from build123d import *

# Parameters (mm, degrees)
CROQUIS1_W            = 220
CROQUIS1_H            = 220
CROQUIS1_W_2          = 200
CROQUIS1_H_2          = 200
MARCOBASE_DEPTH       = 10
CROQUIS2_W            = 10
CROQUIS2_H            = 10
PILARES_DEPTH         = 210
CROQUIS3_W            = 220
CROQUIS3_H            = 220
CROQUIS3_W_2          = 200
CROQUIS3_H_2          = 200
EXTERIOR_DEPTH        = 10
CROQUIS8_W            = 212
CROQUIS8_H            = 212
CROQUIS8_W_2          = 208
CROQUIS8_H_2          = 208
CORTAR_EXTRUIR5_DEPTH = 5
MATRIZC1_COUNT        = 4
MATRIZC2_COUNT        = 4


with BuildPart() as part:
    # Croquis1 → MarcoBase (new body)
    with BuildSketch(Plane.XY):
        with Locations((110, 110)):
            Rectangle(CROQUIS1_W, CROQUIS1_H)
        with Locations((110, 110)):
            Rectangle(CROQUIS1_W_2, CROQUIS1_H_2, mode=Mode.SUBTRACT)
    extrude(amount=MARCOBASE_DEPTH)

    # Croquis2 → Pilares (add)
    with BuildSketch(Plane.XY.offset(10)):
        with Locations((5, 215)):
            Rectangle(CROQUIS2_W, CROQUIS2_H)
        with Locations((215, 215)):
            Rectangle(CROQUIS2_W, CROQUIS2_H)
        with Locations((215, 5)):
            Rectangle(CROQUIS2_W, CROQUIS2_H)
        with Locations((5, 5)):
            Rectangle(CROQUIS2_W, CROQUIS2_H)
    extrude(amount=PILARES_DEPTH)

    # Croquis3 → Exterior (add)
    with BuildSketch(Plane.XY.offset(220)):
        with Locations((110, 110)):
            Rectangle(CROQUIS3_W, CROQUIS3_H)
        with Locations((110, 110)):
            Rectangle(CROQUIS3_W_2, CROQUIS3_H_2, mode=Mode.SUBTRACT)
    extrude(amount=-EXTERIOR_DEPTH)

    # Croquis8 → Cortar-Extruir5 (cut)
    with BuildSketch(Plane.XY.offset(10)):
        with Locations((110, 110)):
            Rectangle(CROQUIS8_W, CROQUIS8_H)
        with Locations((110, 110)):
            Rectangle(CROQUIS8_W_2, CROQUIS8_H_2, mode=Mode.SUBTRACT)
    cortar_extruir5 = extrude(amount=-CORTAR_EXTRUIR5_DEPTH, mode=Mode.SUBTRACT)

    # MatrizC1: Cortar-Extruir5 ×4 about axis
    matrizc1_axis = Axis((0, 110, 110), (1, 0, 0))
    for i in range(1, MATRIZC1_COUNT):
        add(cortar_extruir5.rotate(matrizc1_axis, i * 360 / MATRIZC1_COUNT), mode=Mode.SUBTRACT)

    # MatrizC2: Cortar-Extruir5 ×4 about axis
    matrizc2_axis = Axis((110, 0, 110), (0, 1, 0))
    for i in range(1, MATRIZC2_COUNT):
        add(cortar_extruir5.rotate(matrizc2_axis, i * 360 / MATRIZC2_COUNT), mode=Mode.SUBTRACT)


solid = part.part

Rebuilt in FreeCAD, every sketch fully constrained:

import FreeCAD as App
import Part
import Sketcher
Q = App.Units.Quantity

doc = App.newDocument("Part")
body = doc.addObject("PartDesign::Body", "Body")
body.AllowCompound = True

sketch1 = body.newObject("Sketcher::SketchObject", "Sketch")
sketch1.AttachmentSupport = (doc.getObject("XY_Plane"), [""])
sketch1.MapMode = "FlatFace"
sketch1.addGeometry([
    Part.LineSegment(App.Vector(0, 220, 0), App.Vector(0, 0, 0)),
    Part.LineSegment(App.Vector(0, 0, 0), App.Vector(220, 0, 0)),
    Part.LineSegment(App.Vector(220, 0, 0), App.Vector(220, 220, 0)),
    Part.LineSegment(App.Vector(220, 220, 0), App.Vector(0, 220, 0)),
    Part.LineSegment(App.Vector(210, 10, 0), App.Vector(10, 10, 0)),
    Part.LineSegment(App.Vector(10, 10, 0), App.Vector(10, 210, 0)),
    Part.LineSegment(App.Vector(10, 210, 0), App.Vector(210, 210, 0)),
    Part.LineSegment(App.Vector(210, 210, 0), App.Vector(210, 10, 0)),
], False)
sketch1.addConstraint([
    Sketcher.Constraint("Coincident", 0, 2, 1, 1),
    Sketcher.Constraint("Coincident", 1, 2, 2, 1),
    Sketcher.Constraint("Coincident", 2, 2, 3, 1),
    Sketcher.Constraint("Coincident", 3, 2, 0, 1),
    Sketcher.Constraint("Coincident", 4, 2, 5, 1),
    Sketcher.Constraint("Coincident", 5, 2, 6, 1),
    Sketcher.Constraint("Coincident", 6, 2, 7, 1),
    Sketcher.Constraint("Coincident", 7, 2, 4, 1),
    Sketcher.Constraint("Vertical", 0),
    Sketcher.Constraint("Horizontal", 1),
    Sketcher.Constraint("Vertical", 2),
    Sketcher.Constraint("Horizontal", 3),
    Sketcher.Constraint("Horizontal", 4),
    Sketcher.Constraint("Vertical", 5),
    Sketcher.Constraint("Horizontal", 6),
    Sketcher.Constraint("Vertical", 7),
    Sketcher.Constraint("Coincident", 0, 2, -1, 1),
    Sketcher.Constraint("Equal", 3, 0),
    Sketcher.Constraint("Equal", 6, 5),
    Sketcher.Constraint("DistanceX", 1, 1, 1, 2, Q("220 mm")),
    Sketcher.Constraint("DistanceX", 4, 2, 4, 1, Q("200 mm")),
    Sketcher.Constraint("DistanceX", -1, 1, 4, 2, Q("10 mm")),
    Sketcher.Constraint("DistanceY", -1, 1, 4, 2, Q("10 mm")),
])
pad1 = body.newObject("PartDesign::Pad", "Pad")
pad1.Profile = sketch1
pad1.Length = 10

sketch2 = body.newObject("Sketcher::SketchObject", "Sketch001")
sketch2.AttachmentSupport = (doc.getObject("XY_Plane"), [""])
sketch2.MapMode = "FlatFace"
sketch2.AttachmentOffset = App.Placement(App.Vector(0, 0, 10), App.Rotation())
sketch2.addGeometry([
    Part.LineSegment(App.Vector(0, 220, 0), App.Vector(0, 210, 0)),
    Part.LineSegment(App.Vector(0, 210, 0), App.Vector(10, 210, 0)),
    Part.LineSegment(App.Vector(10, 210, 0), App.Vector(10, 220, 0)),
    Part.LineSegment(App.Vector(10, 220, 0), App.Vector(0, 220, 0)),
    Part.LineSegment(App.Vector(210, 220, 0), App.Vector(210, 210, 0)),
    Part.LineSegment(App.Vector(210, 210, 0), App.Vector(220, 210, 0)),
    Part.LineSegment(App.Vector(220, 210, 0), App.Vector(220, 220, 0)),
    Part.LineSegment(App.Vector(220, 220, 0), App.Vector(210, 220, 0)),
    Part.LineSegment(App.Vector(210, 10, 0), App.Vector(210, 0, 0)),
    Part.LineSegment(App.Vector(210, 0, 0), App.Vector(220, 0, 0)),
    Part.LineSegment(App.Vector(220, 0, 0), App.Vector(220, 10, 0)),
    Part.LineSegment(App.Vector(220, 10, 0), App.Vector(210, 10, 0)),
    Part.LineSegment(App.Vector(0, 10, 0), App.Vector(0, 0, 0)),
    Part.LineSegment(App.Vector(0, 0, 0), App.Vector(10, 0, 0)),
    Part.LineSegment(App.Vector(10, 0, 0), App.Vector(10, 10, 0)),
    Part.LineSegment(App.Vector(10, 10, 0), App.Vector(0, 10, 0)),
], False)
sketch2.addConstraint([
    Sketcher.Constraint("Coincident", 0, 2, 1, 1),
    Sketcher.Constraint("Coincident", 1, 2, 2, 1),
    Sketcher.Constraint("Coincident", 2, 2, 3, 1),
    Sketcher.Constraint("Coincident", 3, 2, 0, 1),
    Sketcher.Constraint("Coincident", 4, 2, 5, 1),
    Sketcher.Constraint("Coincident", 5, 2, 6, 1),
    Sketcher.Constraint("Coincident", 6, 2, 7, 1),
    Sketcher.Constraint("Coincident", 7, 2, 4, 1),
    Sketcher.Constraint("Coincident", 8, 2, 9, 1),
    Sketcher.Constraint("Coincident", 9, 2, 10, 1),
    Sketcher.Constraint("Coincident", 10, 2, 11, 1),
    Sketcher.Constraint("Coincident", 11, 2, 8, 1),
    Sketcher.Constraint("Coincident", 12, 2, 13, 1),
    Sketcher.Constraint("Coincident", 13, 2, 14, 1),
    Sketcher.Constraint("Coincident", 14, 2, 15, 1),
    Sketcher.Constraint("Coincident", 15, 2, 12, 1),
    Sketcher.Constraint("Vertical", 0),
    Sketcher.Constraint("Horizontal", 1),
    Sketcher.Constraint("Vertical", 2),
    Sketcher.Constraint("Horizontal", 3),
    Sketcher.Constraint("Vertical", 4),
    Sketcher.Constraint("Horizontal", 5),
    Sketcher.Constraint("Vertical", 6),
    Sketcher.Constraint("Horizontal", 7),
    Sketcher.Constraint("Vertical", 8),
    Sketcher.Constraint("Horizontal", 9),
    Sketcher.Constraint("Vertical", 10),
    Sketcher.Constraint("Horizontal", 11),
    Sketcher.Constraint("Vertical", 12),
    Sketcher.Constraint("Horizontal", 13),
    Sketcher.Constraint("Vertical", 14),
    Sketcher.Constraint("Horizontal", 15),
    Sketcher.Constraint("Coincident", 12, 2, -1, 1),
    Sketcher.Constraint("PointOnObject", 0, 2, -2),
    Sketcher.Constraint("PointOnObject", 8, 2, -1),
    Sketcher.Constraint("Horizontal", 1, 2, 4, 2),
    Sketcher.Constraint("Horizontal", 3, 2, 6, 2),
    Sketcher.Constraint("Horizontal", 11, 2, 14, 2),
    Sketcher.Constraint("Vertical", 7, 2, 8, 2),
    Sketcher.Constraint("Vertical", 6, 2, 9, 2),
    Sketcher.Constraint("Vertical", 2, 2, 13, 2),
    Sketcher.Constraint("Equal", 3, 5),
    Sketcher.Constraint("Equal", 15, 0),
    Sketcher.Constraint("Equal", 6, 8),
    Sketcher.Constraint("DistanceX", 1, 1, 1, 2, Q("10 mm")),
    Sketcher.Constraint("DistanceY", -1, 1, 0, 2, Q("210 mm")),
    Sketcher.Constraint("DistanceX", -1, 1, 4, 2, Q("210 mm")),
])
pad2 = body.newObject("PartDesign::Pad", "Pad001")
pad2.Profile = sketch2
pad2.Length = 210

sketch3 = body.newObject("Sketcher::SketchObject", "Sketch002")
sketch3.AttachmentSupport = (doc.getObject("XY_Plane"), [""])
sketch3.MapMode = "FlatFace"
sketch3.AttachmentOffset = App.Placement(App.Vector(0, 0, 220), App.Rotation())
sketch3.addGeometry([
    Part.LineSegment(App.Vector(0, 220, 0), App.Vector(0, 0, 0)),
    Part.LineSegment(App.Vector(0, 0, 0), App.Vector(220, 0, 0)),
    Part.LineSegment(App.Vector(220, 0, 0), App.Vector(220, 220, 0)),
    Part.LineSegment(App.Vector(220, 220, 0), App.Vector(0, 220, 0)),
    Part.LineSegment(App.Vector(210, 10, 0), App.Vector(10, 10, 0)),
    Part.LineSegment(App.Vector(10, 10, 0), App.Vector(10, 210, 0)),
    Part.LineSegment(App.Vector(10, 210, 0), App.Vector(210, 210, 0)),
    Part.LineSegment(App.Vector(210, 210, 0), App.Vector(210, 10, 0)),
], False)
sketch3.addConstraint([
    Sketcher.Constraint("Coincident", 0, 2, 1, 1),
    Sketcher.Constraint("Coincident", 1, 2, 2, 1),
    Sketcher.Constraint("Coincident", 2, 2, 3, 1),
    Sketcher.Constraint("Coincident", 3, 2, 0, 1),
    Sketcher.Constraint("Coincident", 4, 2, 5, 1),
    Sketcher.Constraint("Coincident", 5, 2, 6, 1),
    Sketcher.Constraint("Coincident", 6, 2, 7, 1),
    Sketcher.Constraint("Coincident", 7, 2, 4, 1),
    Sketcher.Constraint("Vertical", 0),
    Sketcher.Constraint("Horizontal", 1),
    Sketcher.Constraint("Vertical", 2),
    Sketcher.Constraint("Horizontal", 3),
    Sketcher.Constraint("Horizontal", 4),
    Sketcher.Constraint("Vertical", 5),
    Sketcher.Constraint("Horizontal", 6),
    Sketcher.Constraint("Vertical", 7),
    Sketcher.Constraint("Coincident", 0, 2, -1, 1),
    Sketcher.Constraint("Equal", 3, 0),
    Sketcher.Constraint("Equal", 6, 5),
    Sketcher.Constraint("DistanceX", 1, 1, 1, 2, Q("220 mm")),
    Sketcher.Constraint("DistanceX", 4, 2, 4, 1, Q("200 mm")),
    Sketcher.Constraint("DistanceX", -1, 1, 4, 2, Q("10 mm")),
    Sketcher.Constraint("DistanceY", -1, 1, 4, 2, Q("10 mm")),
])
pad3 = body.newObject("PartDesign::Pad", "Pad002")
pad3.Profile = sketch3
pad3.Length = 10
pad3.Reversed = True

sketch4 = body.newObject("Sketcher::SketchObject", "Sketch003")
sketch4.AttachmentSupport = (doc.getObject("XY_Plane"), [""])
sketch4.MapMode = "FlatFace"
sketch4.AttachmentOffset = App.Placement(App.Vector(0, 0, 10), App.Rotation())
sketch4.addGeometry([
    Part.LineSegment(App.Vector(4, 216, 0), App.Vector(4, 4, 0)),
    Part.LineSegment(App.Vector(4, 4, 0), App.Vector(216, 4, 0)),
    Part.LineSegment(App.Vector(216, 4, 0), App.Vector(216, 216, 0)),
    Part.LineSegment(App.Vector(216, 216, 0), App.Vector(4, 216, 0)),
    Part.LineSegment(App.Vector(214, 6, 0), App.Vector(6, 6, 0)),
    Part.LineSegment(App.Vector(6, 6, 0), App.Vector(6, 214, 0)),
    Part.LineSegment(App.Vector(6, 214, 0), App.Vector(214, 214, 0)),
    Part.LineSegment(App.Vector(214, 214, 0), App.Vector(214, 6, 0)),
], False)
sketch4.addConstraint([
    Sketcher.Constraint("Coincident", 0, 2, 1, 1),
    Sketcher.Constraint("Coincident", 1, 2, 2, 1),
    Sketcher.Constraint("Coincident", 2, 2, 3, 1),
    Sketcher.Constraint("Coincident", 3, 2, 0, 1),
    Sketcher.Constraint("Coincident", 4, 2, 5, 1),
    Sketcher.Constraint("Coincident", 5, 2, 6, 1),
    Sketcher.Constraint("Coincident", 6, 2, 7, 1),
    Sketcher.Constraint("Coincident", 7, 2, 4, 1),
    Sketcher.Constraint("Vertical", 0),
    Sketcher.Constraint("Horizontal", 1),
    Sketcher.Constraint("Vertical", 2),
    Sketcher.Constraint("Horizontal", 3),
    Sketcher.Constraint("Horizontal", 4),
    Sketcher.Constraint("Vertical", 5),
    Sketcher.Constraint("Horizontal", 6),
    Sketcher.Constraint("Vertical", 7),
    Sketcher.Constraint("Equal", 3, 0),
    Sketcher.Constraint("Equal", 6, 5),
    Sketcher.Constraint("DistanceX", 1, 1, 1, 2, Q("212 mm")),
    Sketcher.Constraint("DistanceX", 4, 2, 4, 1, Q("208 mm")),
    Sketcher.Constraint("DistanceX", -1, 1, 0, 2, Q("4 mm")),
    Sketcher.Constraint("DistanceY", -1, 1, 0, 2, Q("4 mm")),
    Sketcher.Constraint("DistanceX", -1, 1, 4, 2, Q("6 mm")),
    Sketcher.Constraint("DistanceY", -1, 1, 4, 2, Q("6 mm")),
])
pocket1 = body.newObject("PartDesign::Pocket", "Pocket")
pocket1.Profile = sketch4
pocket1.Length = 5
doc.recompute()

datumline = body.newObject("PartDesign::Line", "DatumLine")
datumline.Placement = App.Placement(App.Vector(0, 110, 110), App.Rotation(App.Vector(0, 0, 1), App.Vector(1, 0, 0)))
polarpattern = body.newObject("PartDesign::PolarPattern", "PolarPattern")
polarpattern.Originals = [pocket1]
polarpattern.Axis = (datumline, [""])
polarpattern.Angle = 360
polarpattern.Occurrences = 4
body.Tip = polarpattern
doc.recompute()

datumline2 = body.newObject("PartDesign::Line", "DatumLine001")
datumline2.Placement = App.Placement(App.Vector(110, 0, 110), App.Rotation(App.Vector(0, 0, 1), App.Vector(0, 1, 0)))
polarpattern2 = body.newObject("PartDesign::PolarPattern", "PolarPattern001")
polarpattern2.Originals = [pocket1]
polarpattern2.Axis = (datumline2, [""])
polarpattern2.Angle = 360
polarpattern2.Occurrences = 4
body.Tip = polarpattern2

doc.recompute()
